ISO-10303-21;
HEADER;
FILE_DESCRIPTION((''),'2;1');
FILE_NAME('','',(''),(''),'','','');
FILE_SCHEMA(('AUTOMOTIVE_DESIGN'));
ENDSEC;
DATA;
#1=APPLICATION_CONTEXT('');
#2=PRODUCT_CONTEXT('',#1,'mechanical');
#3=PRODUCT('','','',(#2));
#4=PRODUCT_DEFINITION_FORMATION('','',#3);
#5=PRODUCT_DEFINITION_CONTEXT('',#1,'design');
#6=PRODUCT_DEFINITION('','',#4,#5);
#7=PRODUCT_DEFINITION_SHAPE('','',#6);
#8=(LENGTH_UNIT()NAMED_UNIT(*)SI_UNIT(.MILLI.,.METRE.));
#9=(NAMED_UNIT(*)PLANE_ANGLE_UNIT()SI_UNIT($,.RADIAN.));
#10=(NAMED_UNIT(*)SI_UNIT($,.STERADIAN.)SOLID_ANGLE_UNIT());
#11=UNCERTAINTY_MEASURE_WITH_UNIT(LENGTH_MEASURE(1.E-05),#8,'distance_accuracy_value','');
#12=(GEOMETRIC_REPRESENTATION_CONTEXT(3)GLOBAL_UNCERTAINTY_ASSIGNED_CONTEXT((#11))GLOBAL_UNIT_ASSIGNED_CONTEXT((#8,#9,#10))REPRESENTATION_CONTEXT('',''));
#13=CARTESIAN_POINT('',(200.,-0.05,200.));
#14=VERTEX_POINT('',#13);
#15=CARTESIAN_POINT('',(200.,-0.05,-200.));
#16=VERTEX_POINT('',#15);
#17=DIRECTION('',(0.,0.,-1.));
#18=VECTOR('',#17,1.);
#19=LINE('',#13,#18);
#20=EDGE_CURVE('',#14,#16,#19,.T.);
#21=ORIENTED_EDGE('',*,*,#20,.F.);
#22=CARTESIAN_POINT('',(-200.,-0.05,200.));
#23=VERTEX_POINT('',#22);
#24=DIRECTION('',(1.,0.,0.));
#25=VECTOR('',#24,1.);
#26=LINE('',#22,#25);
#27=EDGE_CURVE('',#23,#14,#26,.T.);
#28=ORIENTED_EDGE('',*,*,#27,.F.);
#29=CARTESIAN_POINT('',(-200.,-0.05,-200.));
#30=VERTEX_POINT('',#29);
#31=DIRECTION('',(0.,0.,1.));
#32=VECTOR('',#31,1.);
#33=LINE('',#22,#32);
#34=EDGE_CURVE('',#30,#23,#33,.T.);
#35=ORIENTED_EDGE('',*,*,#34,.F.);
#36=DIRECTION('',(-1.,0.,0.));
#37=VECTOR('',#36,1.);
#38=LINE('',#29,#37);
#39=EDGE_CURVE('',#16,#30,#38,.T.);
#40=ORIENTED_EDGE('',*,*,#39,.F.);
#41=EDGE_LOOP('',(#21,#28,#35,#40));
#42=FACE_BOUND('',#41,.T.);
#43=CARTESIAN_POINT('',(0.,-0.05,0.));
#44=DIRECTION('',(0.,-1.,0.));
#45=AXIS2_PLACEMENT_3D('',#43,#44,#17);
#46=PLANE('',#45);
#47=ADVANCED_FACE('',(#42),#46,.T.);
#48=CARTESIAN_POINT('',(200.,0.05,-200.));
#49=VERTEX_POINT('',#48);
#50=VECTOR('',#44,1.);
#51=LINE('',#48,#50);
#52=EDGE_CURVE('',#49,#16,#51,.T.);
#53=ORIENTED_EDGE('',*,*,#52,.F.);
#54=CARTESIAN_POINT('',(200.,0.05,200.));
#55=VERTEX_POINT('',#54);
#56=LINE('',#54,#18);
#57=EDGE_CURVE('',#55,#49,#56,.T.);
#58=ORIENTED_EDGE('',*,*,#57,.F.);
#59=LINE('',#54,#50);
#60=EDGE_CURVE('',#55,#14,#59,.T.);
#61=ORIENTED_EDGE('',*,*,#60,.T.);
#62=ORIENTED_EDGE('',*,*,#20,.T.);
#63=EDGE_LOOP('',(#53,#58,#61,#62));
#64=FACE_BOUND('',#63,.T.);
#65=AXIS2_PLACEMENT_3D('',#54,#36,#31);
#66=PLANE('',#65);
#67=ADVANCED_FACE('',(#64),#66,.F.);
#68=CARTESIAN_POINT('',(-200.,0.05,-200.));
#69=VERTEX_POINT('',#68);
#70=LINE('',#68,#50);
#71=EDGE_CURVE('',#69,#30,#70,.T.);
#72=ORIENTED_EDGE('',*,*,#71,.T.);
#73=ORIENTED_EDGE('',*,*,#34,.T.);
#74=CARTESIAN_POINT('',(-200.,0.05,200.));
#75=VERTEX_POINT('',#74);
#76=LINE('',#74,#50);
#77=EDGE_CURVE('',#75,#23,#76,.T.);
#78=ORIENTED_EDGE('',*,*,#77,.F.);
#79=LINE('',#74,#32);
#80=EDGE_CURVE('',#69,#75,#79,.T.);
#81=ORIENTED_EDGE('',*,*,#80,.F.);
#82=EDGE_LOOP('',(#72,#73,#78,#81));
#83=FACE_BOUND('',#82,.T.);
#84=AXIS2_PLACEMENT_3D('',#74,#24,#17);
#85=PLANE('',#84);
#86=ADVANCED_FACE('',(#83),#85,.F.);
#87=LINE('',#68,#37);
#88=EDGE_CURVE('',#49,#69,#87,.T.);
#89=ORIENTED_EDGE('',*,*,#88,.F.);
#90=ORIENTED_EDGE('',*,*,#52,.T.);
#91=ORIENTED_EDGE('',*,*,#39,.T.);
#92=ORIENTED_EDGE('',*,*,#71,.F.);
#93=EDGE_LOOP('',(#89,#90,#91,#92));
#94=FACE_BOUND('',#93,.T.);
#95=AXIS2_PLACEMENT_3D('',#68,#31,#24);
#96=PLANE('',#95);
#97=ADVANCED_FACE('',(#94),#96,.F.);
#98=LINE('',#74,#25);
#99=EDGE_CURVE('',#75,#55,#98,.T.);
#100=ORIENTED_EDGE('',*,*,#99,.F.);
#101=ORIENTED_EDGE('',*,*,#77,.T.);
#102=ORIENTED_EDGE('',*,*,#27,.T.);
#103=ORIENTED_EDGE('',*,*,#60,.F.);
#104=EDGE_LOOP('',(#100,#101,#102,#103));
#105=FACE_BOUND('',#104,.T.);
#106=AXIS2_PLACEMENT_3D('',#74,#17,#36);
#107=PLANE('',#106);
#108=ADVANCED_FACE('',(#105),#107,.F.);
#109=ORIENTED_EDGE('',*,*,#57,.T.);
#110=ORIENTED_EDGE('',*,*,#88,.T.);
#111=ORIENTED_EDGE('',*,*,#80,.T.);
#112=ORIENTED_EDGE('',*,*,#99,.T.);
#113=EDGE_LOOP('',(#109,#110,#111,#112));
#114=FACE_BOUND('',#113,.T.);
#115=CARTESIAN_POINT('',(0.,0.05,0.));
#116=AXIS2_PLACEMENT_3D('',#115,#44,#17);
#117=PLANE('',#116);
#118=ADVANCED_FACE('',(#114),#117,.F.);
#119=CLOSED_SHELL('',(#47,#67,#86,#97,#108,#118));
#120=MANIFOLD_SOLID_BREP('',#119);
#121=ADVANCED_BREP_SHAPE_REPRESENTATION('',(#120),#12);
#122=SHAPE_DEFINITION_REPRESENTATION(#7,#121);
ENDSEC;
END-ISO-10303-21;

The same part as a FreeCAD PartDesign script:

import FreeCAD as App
import Part
import Sketcher

doc = App.newDocument("Part")
body = doc.addObject("PartDesign::Body", "Body")

sketch1 = body.newObject("Sketcher::SketchObject", "Sketch")
sketch1.AttachmentSupport = (doc.getObject("XZ_Plane"), [""])
sketch1.MapMode = "FlatFace"
sketch1.addGeometry(Part.LineSegment(App.Vector(-200, -200, 0), App.Vector(-200, 200, 0)), False)
sketch1.addGeometry(Part.LineSegment(App.Vector(-200, 200, 0), App.Vector(200, 200, 0)), False)
sketch1.addGeometry(Part.LineSegment(App.Vector(200, 200, 0), App.Vector(200, -200, 0)), False)
sketch1.addGeometry(Part.LineSegment(App.Vector(200, -200, 0), App.Vector(-200, -200, 0)), False)
sketch1.addConstraint(Sketcher.Constraint("Coincident", 0, 2, 1, 1))
sketch1.addConstraint(Sketcher.Constraint("Coincident", 1, 2, 2, 1))
sketch1.addConstraint(Sketcher.Constraint("Coincident", 2, 2, 3, 1))
sketch1.addConstraint(Sketcher.Constraint("Coincident", 3, 2, 0, 1))
sketch1.addConstraint(Sketcher.Constraint("Vertical", 0))
sketch1.addConstraint(Sketcher.Constraint("Horizontal", 1))
sketch1.addConstraint(Sketcher.Constraint("Vertical", 2))
sketch1.addConstraint(Sketcher.Constraint("Horizontal", 3))
sketch1.addConstraint(Sketcher.Constraint("Symmetric", 0, 2, 2, 2, -1, 1))
sketch1.addConstraint(Sketcher.Constraint("Equal", 3, 0))
sketch1.addConstraint(Sketcher.Constraint("DistanceX", 1, 1, 1, 2, 400.0))
pad1 = body.newObject("PartDesign::Pad", "Pad")
pad1.Profile = sketch1
pad1.Length = 0.1
pad1.Midplane = True

doc.recompute()
